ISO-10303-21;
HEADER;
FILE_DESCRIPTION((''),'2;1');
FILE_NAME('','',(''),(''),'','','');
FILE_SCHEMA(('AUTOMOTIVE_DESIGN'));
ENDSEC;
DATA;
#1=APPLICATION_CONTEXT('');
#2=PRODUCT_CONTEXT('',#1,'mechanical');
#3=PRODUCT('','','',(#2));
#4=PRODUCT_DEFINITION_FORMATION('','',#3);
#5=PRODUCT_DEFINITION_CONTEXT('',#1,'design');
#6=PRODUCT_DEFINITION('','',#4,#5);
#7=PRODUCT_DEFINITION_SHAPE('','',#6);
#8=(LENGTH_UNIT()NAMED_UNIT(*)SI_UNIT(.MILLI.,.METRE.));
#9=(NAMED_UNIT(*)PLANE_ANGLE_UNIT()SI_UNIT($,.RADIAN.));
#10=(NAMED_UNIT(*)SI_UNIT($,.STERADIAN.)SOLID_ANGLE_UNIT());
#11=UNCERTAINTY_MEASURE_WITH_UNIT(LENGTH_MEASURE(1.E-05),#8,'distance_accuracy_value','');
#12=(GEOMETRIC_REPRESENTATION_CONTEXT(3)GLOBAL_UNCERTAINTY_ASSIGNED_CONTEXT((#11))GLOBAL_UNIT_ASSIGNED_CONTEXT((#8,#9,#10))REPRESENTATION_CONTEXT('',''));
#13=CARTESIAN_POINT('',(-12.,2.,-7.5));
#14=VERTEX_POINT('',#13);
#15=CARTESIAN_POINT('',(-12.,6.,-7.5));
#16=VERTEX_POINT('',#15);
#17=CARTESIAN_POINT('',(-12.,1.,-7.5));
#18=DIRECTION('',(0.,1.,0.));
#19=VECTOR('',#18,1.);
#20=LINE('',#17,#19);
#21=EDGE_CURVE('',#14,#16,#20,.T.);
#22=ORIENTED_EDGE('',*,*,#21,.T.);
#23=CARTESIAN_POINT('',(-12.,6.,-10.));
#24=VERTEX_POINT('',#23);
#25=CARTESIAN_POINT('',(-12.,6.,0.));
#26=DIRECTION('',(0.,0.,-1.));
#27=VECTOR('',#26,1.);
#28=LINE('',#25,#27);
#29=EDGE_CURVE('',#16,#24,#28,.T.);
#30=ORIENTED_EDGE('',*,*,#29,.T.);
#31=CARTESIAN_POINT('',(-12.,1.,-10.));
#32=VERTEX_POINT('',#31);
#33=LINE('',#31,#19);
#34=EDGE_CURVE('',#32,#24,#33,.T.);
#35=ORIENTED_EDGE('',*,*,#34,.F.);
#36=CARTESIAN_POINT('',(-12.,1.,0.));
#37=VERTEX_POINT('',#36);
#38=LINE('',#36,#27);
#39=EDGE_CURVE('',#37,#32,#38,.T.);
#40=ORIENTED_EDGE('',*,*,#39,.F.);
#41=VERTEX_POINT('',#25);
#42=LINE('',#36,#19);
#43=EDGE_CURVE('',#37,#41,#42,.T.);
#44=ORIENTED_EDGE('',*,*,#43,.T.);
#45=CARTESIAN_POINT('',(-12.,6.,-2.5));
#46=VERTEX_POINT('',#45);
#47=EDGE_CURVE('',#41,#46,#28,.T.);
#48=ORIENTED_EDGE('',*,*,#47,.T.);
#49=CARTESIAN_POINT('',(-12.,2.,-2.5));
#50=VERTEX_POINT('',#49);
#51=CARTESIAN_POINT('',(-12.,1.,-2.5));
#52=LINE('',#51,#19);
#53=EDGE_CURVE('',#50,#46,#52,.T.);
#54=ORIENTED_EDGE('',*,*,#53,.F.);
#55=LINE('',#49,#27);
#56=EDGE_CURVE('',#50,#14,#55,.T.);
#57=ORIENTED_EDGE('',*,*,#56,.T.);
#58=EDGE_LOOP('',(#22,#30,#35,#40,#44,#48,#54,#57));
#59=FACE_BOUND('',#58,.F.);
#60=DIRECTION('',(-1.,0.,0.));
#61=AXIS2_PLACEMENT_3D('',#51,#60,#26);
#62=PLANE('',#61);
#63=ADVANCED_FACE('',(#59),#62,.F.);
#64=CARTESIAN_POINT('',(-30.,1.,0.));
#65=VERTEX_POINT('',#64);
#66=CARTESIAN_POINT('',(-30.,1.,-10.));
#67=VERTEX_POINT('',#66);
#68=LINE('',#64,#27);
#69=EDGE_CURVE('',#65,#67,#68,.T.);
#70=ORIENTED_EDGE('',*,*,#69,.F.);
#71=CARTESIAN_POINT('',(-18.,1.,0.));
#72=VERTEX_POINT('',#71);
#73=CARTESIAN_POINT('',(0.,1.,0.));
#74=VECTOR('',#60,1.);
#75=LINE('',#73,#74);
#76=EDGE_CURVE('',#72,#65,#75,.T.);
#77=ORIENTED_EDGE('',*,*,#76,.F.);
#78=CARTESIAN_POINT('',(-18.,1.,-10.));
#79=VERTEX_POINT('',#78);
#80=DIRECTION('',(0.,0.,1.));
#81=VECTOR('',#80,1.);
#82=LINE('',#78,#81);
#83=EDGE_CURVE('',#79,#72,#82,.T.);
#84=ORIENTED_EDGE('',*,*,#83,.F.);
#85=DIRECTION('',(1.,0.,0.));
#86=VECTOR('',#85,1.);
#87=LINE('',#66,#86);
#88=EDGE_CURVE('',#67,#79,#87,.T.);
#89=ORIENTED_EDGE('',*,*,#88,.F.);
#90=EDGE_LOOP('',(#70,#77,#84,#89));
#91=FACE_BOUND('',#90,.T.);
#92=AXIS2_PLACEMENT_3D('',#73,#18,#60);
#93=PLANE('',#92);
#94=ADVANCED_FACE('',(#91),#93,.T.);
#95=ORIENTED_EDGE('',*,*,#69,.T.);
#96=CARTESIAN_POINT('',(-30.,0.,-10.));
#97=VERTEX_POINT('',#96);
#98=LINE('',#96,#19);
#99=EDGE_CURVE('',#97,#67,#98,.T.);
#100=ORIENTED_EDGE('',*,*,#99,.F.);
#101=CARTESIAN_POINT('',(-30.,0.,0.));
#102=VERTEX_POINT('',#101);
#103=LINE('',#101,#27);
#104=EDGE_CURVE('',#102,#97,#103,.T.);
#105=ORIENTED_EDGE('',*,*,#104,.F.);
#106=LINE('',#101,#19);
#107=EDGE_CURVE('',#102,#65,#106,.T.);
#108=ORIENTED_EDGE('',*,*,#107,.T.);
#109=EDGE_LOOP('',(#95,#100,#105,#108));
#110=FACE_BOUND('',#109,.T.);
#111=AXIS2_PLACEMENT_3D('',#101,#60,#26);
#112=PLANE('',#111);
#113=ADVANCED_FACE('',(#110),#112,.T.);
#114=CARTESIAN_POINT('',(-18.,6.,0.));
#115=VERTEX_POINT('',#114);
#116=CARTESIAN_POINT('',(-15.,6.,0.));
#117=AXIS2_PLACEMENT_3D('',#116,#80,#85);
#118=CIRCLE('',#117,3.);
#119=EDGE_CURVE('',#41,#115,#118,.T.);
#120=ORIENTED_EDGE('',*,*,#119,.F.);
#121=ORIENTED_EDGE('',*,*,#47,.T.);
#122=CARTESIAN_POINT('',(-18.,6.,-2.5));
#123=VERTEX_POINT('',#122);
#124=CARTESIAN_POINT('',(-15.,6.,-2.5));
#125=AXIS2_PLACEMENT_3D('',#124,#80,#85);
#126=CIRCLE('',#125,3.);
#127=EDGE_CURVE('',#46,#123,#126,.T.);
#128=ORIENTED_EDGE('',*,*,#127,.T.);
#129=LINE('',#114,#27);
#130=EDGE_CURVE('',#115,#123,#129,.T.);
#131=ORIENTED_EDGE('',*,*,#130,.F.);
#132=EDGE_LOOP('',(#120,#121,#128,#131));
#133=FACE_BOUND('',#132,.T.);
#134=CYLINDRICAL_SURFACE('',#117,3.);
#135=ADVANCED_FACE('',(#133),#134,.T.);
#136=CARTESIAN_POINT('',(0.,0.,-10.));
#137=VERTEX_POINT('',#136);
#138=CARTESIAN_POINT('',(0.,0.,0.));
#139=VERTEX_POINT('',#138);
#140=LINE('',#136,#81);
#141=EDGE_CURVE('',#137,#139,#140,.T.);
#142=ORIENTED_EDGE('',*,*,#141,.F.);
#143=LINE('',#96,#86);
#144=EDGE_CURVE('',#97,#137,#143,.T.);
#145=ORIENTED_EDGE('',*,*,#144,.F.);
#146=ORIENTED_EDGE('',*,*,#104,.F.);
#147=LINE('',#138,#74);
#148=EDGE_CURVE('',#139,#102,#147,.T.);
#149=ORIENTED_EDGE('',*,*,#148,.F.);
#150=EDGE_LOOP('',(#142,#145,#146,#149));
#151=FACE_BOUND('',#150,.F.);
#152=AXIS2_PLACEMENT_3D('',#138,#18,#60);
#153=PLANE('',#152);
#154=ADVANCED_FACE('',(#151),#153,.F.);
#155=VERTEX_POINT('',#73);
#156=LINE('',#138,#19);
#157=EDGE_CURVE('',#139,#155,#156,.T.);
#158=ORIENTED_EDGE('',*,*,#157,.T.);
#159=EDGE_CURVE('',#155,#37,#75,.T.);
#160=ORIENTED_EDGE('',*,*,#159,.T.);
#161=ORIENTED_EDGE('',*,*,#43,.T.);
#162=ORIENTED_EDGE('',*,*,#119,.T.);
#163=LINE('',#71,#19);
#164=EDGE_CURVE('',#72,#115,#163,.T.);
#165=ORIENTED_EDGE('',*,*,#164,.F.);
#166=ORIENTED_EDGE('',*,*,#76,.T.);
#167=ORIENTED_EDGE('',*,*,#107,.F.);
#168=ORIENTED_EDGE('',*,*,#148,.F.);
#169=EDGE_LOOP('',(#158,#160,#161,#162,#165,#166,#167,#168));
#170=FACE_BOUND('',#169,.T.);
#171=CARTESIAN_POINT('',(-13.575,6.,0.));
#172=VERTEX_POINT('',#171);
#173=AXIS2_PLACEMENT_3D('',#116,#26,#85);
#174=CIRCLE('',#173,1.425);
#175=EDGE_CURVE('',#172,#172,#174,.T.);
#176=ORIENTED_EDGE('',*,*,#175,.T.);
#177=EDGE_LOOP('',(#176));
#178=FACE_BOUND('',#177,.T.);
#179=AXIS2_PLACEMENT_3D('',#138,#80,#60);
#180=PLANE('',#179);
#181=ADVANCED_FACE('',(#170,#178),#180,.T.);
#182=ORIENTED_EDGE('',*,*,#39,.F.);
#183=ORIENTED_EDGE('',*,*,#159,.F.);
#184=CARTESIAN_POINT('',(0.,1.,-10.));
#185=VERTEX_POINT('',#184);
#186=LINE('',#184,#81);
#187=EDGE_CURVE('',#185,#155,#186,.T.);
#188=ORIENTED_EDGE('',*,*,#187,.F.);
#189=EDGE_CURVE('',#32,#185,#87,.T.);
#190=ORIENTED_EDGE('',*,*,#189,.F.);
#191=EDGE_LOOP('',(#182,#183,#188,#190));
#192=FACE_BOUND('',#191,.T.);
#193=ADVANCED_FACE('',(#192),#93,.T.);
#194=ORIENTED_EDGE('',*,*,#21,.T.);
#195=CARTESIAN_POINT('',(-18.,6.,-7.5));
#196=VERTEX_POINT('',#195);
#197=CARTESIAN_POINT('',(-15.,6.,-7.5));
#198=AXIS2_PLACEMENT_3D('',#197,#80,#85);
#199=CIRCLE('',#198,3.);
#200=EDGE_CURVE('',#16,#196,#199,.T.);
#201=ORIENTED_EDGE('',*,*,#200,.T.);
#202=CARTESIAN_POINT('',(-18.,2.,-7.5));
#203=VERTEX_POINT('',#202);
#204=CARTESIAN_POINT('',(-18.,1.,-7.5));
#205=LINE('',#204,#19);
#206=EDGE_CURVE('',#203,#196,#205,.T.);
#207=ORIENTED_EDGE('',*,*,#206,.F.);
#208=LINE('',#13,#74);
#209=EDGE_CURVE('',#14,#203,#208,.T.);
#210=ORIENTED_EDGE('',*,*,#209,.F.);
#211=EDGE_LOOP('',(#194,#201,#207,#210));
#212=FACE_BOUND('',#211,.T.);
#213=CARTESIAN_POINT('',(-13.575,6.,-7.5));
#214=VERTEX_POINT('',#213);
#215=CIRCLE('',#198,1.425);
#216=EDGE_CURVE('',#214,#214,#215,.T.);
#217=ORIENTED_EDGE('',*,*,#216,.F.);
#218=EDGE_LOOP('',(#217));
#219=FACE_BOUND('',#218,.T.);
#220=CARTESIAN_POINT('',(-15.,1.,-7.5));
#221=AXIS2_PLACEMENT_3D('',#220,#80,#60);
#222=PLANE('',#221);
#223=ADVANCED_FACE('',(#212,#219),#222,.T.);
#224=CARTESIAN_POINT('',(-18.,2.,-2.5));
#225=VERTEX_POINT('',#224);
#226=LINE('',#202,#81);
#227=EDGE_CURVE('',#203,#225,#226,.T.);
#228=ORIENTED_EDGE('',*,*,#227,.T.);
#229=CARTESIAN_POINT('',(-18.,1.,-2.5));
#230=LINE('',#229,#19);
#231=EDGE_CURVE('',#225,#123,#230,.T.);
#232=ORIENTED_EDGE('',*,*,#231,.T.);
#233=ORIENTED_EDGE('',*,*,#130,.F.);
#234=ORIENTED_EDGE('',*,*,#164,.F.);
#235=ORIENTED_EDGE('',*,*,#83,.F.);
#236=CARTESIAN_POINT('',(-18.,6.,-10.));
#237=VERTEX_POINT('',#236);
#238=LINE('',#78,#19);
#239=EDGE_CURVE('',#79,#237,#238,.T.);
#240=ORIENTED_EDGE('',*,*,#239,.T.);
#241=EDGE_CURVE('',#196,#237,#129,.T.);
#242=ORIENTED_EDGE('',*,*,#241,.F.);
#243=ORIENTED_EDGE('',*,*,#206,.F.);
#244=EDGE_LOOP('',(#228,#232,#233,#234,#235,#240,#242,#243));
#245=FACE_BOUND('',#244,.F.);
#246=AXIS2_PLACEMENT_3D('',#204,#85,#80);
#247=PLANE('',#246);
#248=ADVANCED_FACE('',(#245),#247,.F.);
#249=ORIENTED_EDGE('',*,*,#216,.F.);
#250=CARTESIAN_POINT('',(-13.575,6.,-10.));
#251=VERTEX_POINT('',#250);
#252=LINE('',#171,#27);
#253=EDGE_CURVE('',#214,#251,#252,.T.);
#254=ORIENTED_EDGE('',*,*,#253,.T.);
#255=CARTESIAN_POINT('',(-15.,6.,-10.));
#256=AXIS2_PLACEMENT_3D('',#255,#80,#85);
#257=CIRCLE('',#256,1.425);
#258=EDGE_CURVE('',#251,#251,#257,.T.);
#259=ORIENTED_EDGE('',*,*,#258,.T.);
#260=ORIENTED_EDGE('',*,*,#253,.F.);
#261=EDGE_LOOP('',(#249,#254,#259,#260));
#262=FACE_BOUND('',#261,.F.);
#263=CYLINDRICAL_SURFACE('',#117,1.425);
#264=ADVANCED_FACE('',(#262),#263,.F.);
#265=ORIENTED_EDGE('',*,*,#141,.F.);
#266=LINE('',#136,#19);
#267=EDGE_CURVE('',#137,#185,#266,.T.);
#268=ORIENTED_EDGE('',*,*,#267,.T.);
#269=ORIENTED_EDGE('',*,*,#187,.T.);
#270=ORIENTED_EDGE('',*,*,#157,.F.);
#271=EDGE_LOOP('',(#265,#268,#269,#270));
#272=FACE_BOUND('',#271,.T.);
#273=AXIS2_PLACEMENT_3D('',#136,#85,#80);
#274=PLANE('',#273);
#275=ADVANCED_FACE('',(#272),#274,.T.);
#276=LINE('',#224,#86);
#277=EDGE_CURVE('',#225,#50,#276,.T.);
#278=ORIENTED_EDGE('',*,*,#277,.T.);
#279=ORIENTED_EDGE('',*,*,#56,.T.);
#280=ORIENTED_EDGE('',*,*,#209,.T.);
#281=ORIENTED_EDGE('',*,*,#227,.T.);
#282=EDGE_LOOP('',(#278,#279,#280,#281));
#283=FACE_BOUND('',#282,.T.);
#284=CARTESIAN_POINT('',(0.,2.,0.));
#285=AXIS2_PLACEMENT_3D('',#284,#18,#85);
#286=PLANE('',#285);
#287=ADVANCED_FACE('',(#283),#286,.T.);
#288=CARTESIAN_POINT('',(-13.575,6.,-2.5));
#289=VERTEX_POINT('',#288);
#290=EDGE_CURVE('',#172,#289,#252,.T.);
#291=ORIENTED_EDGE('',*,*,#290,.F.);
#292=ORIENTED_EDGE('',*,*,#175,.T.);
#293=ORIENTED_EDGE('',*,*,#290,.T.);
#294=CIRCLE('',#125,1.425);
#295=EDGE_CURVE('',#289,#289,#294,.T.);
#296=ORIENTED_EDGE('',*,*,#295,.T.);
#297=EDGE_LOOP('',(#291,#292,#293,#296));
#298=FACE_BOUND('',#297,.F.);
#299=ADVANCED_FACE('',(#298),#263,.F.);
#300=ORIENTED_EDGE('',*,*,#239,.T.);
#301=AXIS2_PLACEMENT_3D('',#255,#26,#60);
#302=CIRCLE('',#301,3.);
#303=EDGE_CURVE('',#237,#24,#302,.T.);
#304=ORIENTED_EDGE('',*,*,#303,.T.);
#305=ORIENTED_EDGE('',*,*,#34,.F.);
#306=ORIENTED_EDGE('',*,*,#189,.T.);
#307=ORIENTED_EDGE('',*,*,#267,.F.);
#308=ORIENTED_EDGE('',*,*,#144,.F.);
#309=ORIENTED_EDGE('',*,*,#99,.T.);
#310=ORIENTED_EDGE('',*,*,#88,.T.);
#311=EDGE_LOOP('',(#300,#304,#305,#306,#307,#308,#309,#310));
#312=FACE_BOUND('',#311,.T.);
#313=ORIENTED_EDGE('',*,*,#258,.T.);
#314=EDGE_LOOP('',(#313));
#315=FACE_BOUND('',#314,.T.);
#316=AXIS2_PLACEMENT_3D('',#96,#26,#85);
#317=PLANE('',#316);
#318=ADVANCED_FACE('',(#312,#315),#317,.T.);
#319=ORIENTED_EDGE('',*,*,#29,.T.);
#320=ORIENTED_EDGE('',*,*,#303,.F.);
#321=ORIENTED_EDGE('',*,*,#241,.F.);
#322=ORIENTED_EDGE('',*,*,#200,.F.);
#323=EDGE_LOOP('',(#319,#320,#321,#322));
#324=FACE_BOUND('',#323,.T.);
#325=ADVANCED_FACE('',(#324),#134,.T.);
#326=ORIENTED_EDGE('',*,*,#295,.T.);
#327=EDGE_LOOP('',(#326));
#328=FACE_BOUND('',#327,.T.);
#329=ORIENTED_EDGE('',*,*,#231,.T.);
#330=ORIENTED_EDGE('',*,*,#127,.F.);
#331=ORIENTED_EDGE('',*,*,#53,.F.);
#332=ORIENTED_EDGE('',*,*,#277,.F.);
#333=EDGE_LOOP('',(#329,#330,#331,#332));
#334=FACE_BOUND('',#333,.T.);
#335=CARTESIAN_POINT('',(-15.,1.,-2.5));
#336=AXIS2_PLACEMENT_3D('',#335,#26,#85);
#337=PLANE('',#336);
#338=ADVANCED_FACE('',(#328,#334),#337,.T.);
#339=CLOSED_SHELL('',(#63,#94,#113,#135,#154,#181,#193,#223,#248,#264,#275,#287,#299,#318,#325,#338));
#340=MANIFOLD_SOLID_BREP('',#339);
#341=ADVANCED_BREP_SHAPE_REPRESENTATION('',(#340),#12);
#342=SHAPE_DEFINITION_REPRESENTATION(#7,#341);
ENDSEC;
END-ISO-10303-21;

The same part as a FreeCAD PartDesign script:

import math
import FreeCAD as App
import Part
import Sketcher
from FreeCAD import Vector

doc = App.newDocument("Part")
body = doc.addObject("PartDesign::Body", "Body")

sketch1 = body.newObject("Sketcher::SketchObject", "Sketch")
sketch1.AttachmentSupport = (doc.getObject("XZ_Plane"), [""])
sketch1.MapMode = "FlatFace"
sketch1.addGeometry([
    Part.LineSegment(Vector(-30, 0, 0), Vector(0, 0, 0)),
    Part.LineSegment(Vector(0, 0, 0), Vector(0, -10, 0)),
    Part.LineSegment(Vector(0, -10, 0), Vector(-30, -10, 0)),
    Part.LineSegment(Vector(-30, -10, 0), Vector(-30, 0, 0)),
], False)
sketch1.addConstraint([
    Sketcher.Constraint("Coincident", 0, 2, 1, 1),
    Sketcher.Constraint("Coincident", 1, 2, 2, 1),
    Sketcher.Constraint("Coincident", 2, 2, 3, 1),
    Sketcher.Constraint("Coincident", 3, 2, 0, 1),
    Sketcher.Constraint("Horizontal", 0),
    Sketcher.Constraint("Vertical", 1),
    Sketcher.Constraint("Horizontal", 2),
    Sketcher.Constraint("Vertical", 3),
    Sketcher.Constraint("Coincident", 0, 2, -1, 1),
    Sketcher.Constraint("DistanceX", 0, 1, 0, 2, 30.0),
    Sketcher.Constraint("DistanceY", 1, 2, 1, 1, 10.0),
])
pad1 = body.newObject("PartDesign::Pad", "Pad")
pad1.Profile = sketch1
pad1.Length = 1
pad1.Reversed = True

sketch2 = body.newObject("Sketcher::SketchObject", "Sketch001")
sketch2.AttachmentSupport = (doc.getObject("XZ_Plane"), [""])
sketch2.MapMode = "FlatFace"
sketch2.AttachmentOffset = App.Placement(Vector(0, 0, -1), App.Rotation())
sketch2.addGeometry([
    Part.LineSegment(Vector(-12, -2.5, 0), Vector(-18, -2.5, 0)),
    Part.LineSegment(Vector(-18, -2.5, 0), Vector(-18, 0, 0)),
    Part.LineSegment(Vector(-18, 0, 0), Vector(-12, 0, 0)),
    Part.LineSegment(Vector(-12, 0, 0), Vector(-12, -2.5, 0)),
    Part.LineSegment(Vector(-18, -7.5, 0), Vector(-12, -7.5, 0)),
    Part.LineSegment(Vector(-12, -7.5, 0), Vector(-12, -10, 0)),
    Part.LineSegment(Vector(-12, -10, 0), Vector(-18, -10, 0)),
    Part.LineSegment(Vector(-18, -10, 0), Vector(-18, -7.5, 0)),
], False)
sketch2.addConstraint([
    Sketcher.Constraint("Coincident", 0, 2, 1, 1),
    Sketcher.Constraint("Coincident", 1, 2, 2, 1),
    Sketcher.Constraint("Coincident", 2, 2, 3, 1),
    Sketcher.Constraint("Coincident", 3, 2, 0, 1),
    Sketcher.Constraint("Coincident", 4, 2, 5, 1),
    Sketcher.Constraint("Coincident", 5, 2, 6, 1),
    Sketcher.Constraint("Coincident", 6, 2, 7, 1),
    Sketcher.Constraint("Coincident", 7, 2, 4, 1),
    Sketcher.Constraint("Horizontal", 0),
    Sketcher.Constraint("Vertical", 1),
    Sketcher.Constraint("Horizontal", 2),
    Sketcher.Constraint("Vertical", 3),
    Sketcher.Constraint("Horizontal", 4),
    Sketcher.Constraint("Vertical", 5),
    Sketcher.Constraint("Horizontal", 6),
    Sketcher.Constraint("Vertical", 7),
    Sketcher.Constraint("PointOnObject", 1, 2, -1),
    Sketcher.Constraint("Vertical", 3, 2, 4, 2),
    Sketcher.Constraint("Vertical", 1, 2, 6, 2),
    Sketcher.Constraint("Equal", 3, 5),
    Sketcher.Constraint("DistanceX", 0, 2, 0, 1, 6.0),
    Sketcher.Constraint("DistanceY", 1, 1, 1, 2, 2.5),
    Sketcher.Constraint("DistanceX", 0, 2, -1, 1, 18.0),
    Sketcher.Constraint("DistanceY", 5, 2, -1, 1, 10.0),
])
pad2 = body.newObject("PartDesign::Pad", "Pad001")
pad2.Profile = sketch2
pad2.Length = 8
pad2.Reversed = True

sketch3 = body.newObject("Sketcher::SketchObject", "Sketch002")
sketch3.AttachmentSupport = (doc.getObject("XY_Plane"), [""])
sketch3.MapMode = "FlatFace"
sketch3.addGeometry([
    Part.LineSegment(Vector(-15, 9, 0), Vector(-18, 9, 0)),
    Part.LineSegment(Vector(-18, 9, 0), Vector(-18, 6, 0)),
    Part.ArcOfCircle(Part.Circle(Vector(-15, 6, 0), Vector(0, 0, 1), 3), math.radians(90), math.radians(180)),
    Part.Circle(Vector(-15, 6, 0), Vector(0, 0, 1), 1.425),
    Part.LineSegment(Vector(-12, 9, 0), Vector(-15, 9, 0)),
    Part.ArcOfCircle(Part.Circle(Vector(-15, 6, 0), Vector(0, 0, 1), 3), math.radians(0), math.radians(90)),
    Part.LineSegment(Vector(-12, 6, 0), Vector(-12, 9, 0)),
], False)
sketch3.addConstraint([
    Sketcher.Constraint("Coincident", 0, 2, 1, 1),
    Sketcher.Constraint("Tangent", 1, 2, 2, 2),
    Sketcher.Constraint("Tangent", 2, 1, 0, 1),
    Sketcher.Constraint("Tangent", 4, 2, 5, 2),
    Sketcher.Constraint("Tangent", 5, 1, 6, 1),
    Sketcher.Constraint("Coincident", 6, 2, 4, 1),
    Sketcher.Constraint("Horizontal", 0),
    Sketcher.Constraint("Vertical", 1),
    Sketcher.Constraint("Horizontal", 4),
    Sketcher.Constraint("Vertical", 6),
    Sketcher.Constraint("Coincident", 3, 3, 2, 3),
    Sketcher.Constraint("Coincident", 5, 3, 2, 3),
    Sketcher.Constraint("Equal", 2, 5),
    Sketcher.Constraint("Radius", 2, 3.0),
    Sketcher.Constraint("Diameter", 3, 2.85),
    Sketcher.Constraint("DistanceX", 2, 3, -1, 1, 15.0),
    Sketcher.Constraint("DistanceY", -1, 1, 2, 3, 6.0),
])
pocket1 = body.newObject("PartDesign::Pocket", "Pocket")
pocket1.Profile = sketch3
pocket1.Type = "ThroughAll"

sketch4 = body.newObject("Sketcher::SketchObject", "Sketch003")
sketch4.AttachmentSupport = (doc.getObject("XZ_Plane"), [""])
sketch4.MapMode = "FlatFace"
sketch4.AttachmentOffset = App.Placement(Vector(0, 0, -1), App.Rotation())
sketch4.addGeometry([
    Part.LineSegment(Vector(-12, -2.5, 0), Vector(-12, -7.5, 0)),
    Part.LineSegment(Vector(-12, -7.5, 0), Vector(-18, -7.5, 0)),
    Part.LineSegment(Vector(-18, -7.5, 0), Vector(-18, -2.5, 0)),
    Part.LineSegment(Vector(-18, -2.5, 0), Vector(-12, -2.5, 0)),
], False)
sketch4.addConstraint([
    Sketcher.Constraint("Coincident", 0, 2, 1, 1),
    Sketcher.Constraint("Coincident", 1, 2, 2, 1),
    Sketcher.Constraint("Coincident", 2, 2, 3, 1),
    Sketcher.Constraint("Coincident", 3, 2, 0, 1),
    Sketcher.Constraint("Vertical", 0),
    Sketcher.Constraint("Horizontal", 1),
    Sketcher.Constraint("Vertical", 2),
    Sketcher.Constraint("Horizontal", 3),
    Sketcher.Constraint("DistanceX", 1, 2, 1, 1, 6.0),
    Sketcher.Constraint("DistanceY", 0, 2, 0, 1, 5.0),
    Sketcher.Constraint("DistanceX", 0, 2, -1, 1, 12.0),
    Sketcher.Constraint("DistanceY", 0, 2, -1, 1, 7.5),
])
pad3 = body.newObject("PartDesign::Pad", "Pad002")
pad3.Profile = sketch4
pad3.Length = 1
pad3.Reversed = True

doc.recompute()
